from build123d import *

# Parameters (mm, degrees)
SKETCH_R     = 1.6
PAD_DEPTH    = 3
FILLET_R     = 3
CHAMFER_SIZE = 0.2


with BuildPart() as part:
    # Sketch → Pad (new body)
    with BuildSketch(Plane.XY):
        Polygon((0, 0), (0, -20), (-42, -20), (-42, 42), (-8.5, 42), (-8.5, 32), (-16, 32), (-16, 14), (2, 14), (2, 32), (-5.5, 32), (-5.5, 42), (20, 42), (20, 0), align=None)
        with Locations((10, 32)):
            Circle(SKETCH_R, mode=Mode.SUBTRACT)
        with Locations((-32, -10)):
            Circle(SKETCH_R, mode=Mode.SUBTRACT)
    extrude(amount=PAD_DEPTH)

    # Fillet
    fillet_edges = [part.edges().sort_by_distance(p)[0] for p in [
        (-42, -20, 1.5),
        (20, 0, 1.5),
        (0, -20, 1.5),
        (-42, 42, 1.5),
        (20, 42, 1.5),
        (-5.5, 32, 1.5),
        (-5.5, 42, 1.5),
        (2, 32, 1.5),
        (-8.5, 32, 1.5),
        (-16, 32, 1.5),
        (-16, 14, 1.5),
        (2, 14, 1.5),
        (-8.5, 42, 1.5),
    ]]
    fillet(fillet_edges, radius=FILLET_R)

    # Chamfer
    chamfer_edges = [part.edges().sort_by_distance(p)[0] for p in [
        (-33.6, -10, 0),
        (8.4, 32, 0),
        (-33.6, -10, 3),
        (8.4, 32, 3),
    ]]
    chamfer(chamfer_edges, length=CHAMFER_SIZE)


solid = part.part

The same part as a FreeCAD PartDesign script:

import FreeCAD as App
import Part
import Sketcher

V = App.Vector
Q = App.Units.Quantity


def edges_at(feature, points):
    """Names of the edges that pass closest to the given points."""
    edges = feature.Shape.Edges
    near = lambda p: min(range(len(edges)), key=lambda i: edges[i].distToShape(Part.Vertex(*p))[0])
    return sorted({f"Edge{near(p) + 1}" for p in points})

doc = App.newDocument("Part")
body = doc.addObject("PartDesign::Body", "Body")

# Sketch on XY plane
sketch1 = body.newObject("Sketcher::SketchObject", "Sketch")
sketch1.AttachmentSupport = (doc.getObject("XY_Plane"), [""])
sketch1.MapMode = "FlatFace"
sketch1.addGeometry(Part.LineSegment(V(0, -20, 0), V(0, 0, 0)), False)
sketch1.addGeometry(Part.LineSegment(V(0, 0, 0), V(20, 0, 0)), False)
sketch1.addGeometry(Part.LineSegment(V(20, 0, 0), V(20, 42, 0)), False)
sketch1.addGeometry(Part.LineSegment(V(20, 42, 0), V(-5.5, 42, 0)), False)
sketch1.addGeometry(Part.LineSegment(V(-5.5, 42, 0), V(-5.5, 32, 0)), False)
sketch1.addGeometry(Part.LineSegment(V(-5.5, 32, 0), V(2, 32, 0)), False)
sketch1.addGeometry(Part.LineSegment(V(2, 32, 0), V(2, 14, 0)), False)
sketch1.addGeometry(Part.LineSegment(V(2, 14, 0), V(-16, 14, 0)), False)
sketch1.addGeometry(Part.LineSegment(V(-16, 14, 0), V(-16, 32, 0)), False)
sketch1.addGeometry(Part.LineSegment(V(-16, 32, 0), V(-8.5, 32, 0)), False)
sketch1.addGeometry(Part.LineSegment(V(-8.5, 32, 0), V(-8.5, 42, 0)), False)
sketch1.addGeometry(Part.LineSegment(V(-8.5, 42, 0), V(-42, 42, 0)), False)
sketch1.addGeometry(Part.LineSegment(V(-42, 42, 0), V(-42, -20, 0)), False)
sketch1.addGeometry(Part.LineSegment(V(-42, -20, 0), V(0, -20, 0)), False)
sketch1.addGeometry(Part.Circle(V(-32, -10, 0), V(0, 0, 1), 1.6), False)
sketch1.addGeometry(Part.Circle(V(10, 32, 0), V(0, 0, 1), 1.6), False)
sketch1.addConstraint(Sketcher.Constraint("Coincident", 0, 2, 1, 1))
sketch1.addConstraint(Sketcher.Constraint("Coincident", 1, 2, 2, 1))
sketch1.addConstraint(Sketcher.Constraint("Coincident", 2, 2, 3, 1))
sketch1.addConstraint(Sketcher.Constraint("Coincident", 3, 2, 4, 1))
sketch1.addConstraint(Sketcher.Constraint("Coincident", 4, 2, 5, 1))
sketch1.addConstraint(Sketcher.Constraint("Coincident", 5, 2, 6, 1))
sketch1.addConstraint(Sketcher.Constraint("Coincident", 6, 2, 7, 1))
sketch1.addConstraint(Sketcher.Constraint("Coincident", 7, 2, 8, 1))
sketch1.addConstraint(Sketcher.Constraint("Coincident", 8, 2, 9, 1))
sketch1.addConstraint(Sketcher.Constraint("Coincident", 9, 2, 10, 1))
sketch1.addConstraint(Sketcher.Constraint("Coincident", 10, 2, 11, 1))
sketch1.addConstraint(Sketcher.Constraint("Coincident", 11, 2, 12, 1))
sketch1.addConstraint(Sketcher.Constraint("Coincident", 12, 2, 13, 1))
sketch1.addConstraint(Sketcher.Constraint("Coincident", 13, 2, 0, 1))
sketch1.addConstraint(Sketcher.Constraint("Vertical", 0))
sketch1.addConstraint(Sketcher.Constraint("Horizontal", 1))
sketch1.addConstraint(Sketcher.Constraint("Vertical", 2))
sketch1.addConstraint(Sketcher.Constraint("Horizontal", 3))
sketch1.addConstraint(Sketcher.Constraint("Vertical", 4))
sketch1.addConstraint(Sketcher.Constraint("Horizontal", 5))
sketch1.addConstraint(Sketcher.Constraint("Vertical", 6))
sketch1.addConstraint(Sketcher.Constraint("Horizontal", 7))
sketch1.addConstraint(Sketcher.Constraint("Vertical", 8))
sketch1.addConstraint(Sketcher.Constraint("Horizontal", 9))
sketch1.addConstraint(Sketcher.Constraint("Vertical", 10))
sketch1.addConstraint(Sketcher.Constraint("Horizontal", 11))
sketch1.addConstraint(Sketcher.Constraint("Vertical", 12))
sketch1.addConstraint(Sketcher.Constraint("Horizontal", 13))
sketch1.addConstraint(Sketcher.Constraint("Coincident", 0, 2, -1, 1))
sketch1.addConstraint(Sketcher.Constraint("Equal", 14, 15))
sketch1.addConstraint(Sketcher.Constraint("Horizontal", 15, 3, 4, 2))
sketch1.addConstraint(Sketcher.Constraint("Horizontal", 5, 2, 8, 2))
sketch1.addConstraint(Sketcher.Constraint("Horizontal", 3, 2, 10, 2))
sketch1.addConstraint(Sketcher.Constraint("Equal", 5, 9))
sketch1.addConstraint(Sketcher.Constraint("Equal", 1, 0))
sketch1.addConstraint(Sketcher.Constraint("Equal", 13, 2))
sketch1.addConstraint(Sketcher.Constraint("Equal", 7, 6))
sketch1.addConstraint(Sketcher.Constraint("Diameter", 14, Q("3.2 mm")))
sketch1.addConstraint(Sketcher.Constraint("DistanceX", 1, 1, 1, 2, Q("20 mm")))
sketch1.addConstraint(Sketcher.Constraint("DistanceX", 7, 2, 7, 1, Q("18 mm")))
sketch1.addConstraint(Sketcher.Constraint("DistanceX", 13, 1, 13, 2, Q("42 mm")))
sketch1.addConstraint(Sketcher.Constraint("DistanceY", 4, 2, 4, 1, Q("10 mm")))
sketch1.addConstraint(Sketcher.Constraint("DistanceX", 3, 2, 3, 1, Q("25.5 mm")))
sketch1.addConstraint(Sketcher.Constraint("DistanceX", 5, 1, 5, 2, Q("7.5 mm")))
sketch1.addConstraint(Sketcher.Constraint("DistanceX", 14, 3, -1, 1, Q("32 mm")))
sketch1.addConstraint(Sketcher.Constraint("DistanceY", 14, 3, -1, 1, Q("10 mm")))
sketch1.addConstraint(Sketcher.Constraint("DistanceX", -1, 1, 15, 3, Q("10 mm")))
pad1 = body.newObject("PartDesign::Pad", "Pad")
pad1.Profile = sketch1
pad1.Length = 3
doc.recompute()

fillet = body.newObject("PartDesign::Fillet", "Fillet")
fillet.Base = (pad1, edges_at(pad1, [
    (-42, -20, 1.5),
    (20, 0, 1.5),
    (0, -20, 1.5),
    (-42, 42, 1.5),
    (20, 42, 1.5),
    (-5.5, 32, 1.5),
    (-5.5, 42, 1.5),
    (2, 32, 1.5),
    (-8.5, 32, 1.5),
    (-16, 32, 1.5),
    (-16, 14, 1.5),
    (2, 14, 1.5),
    (-8.5, 42, 1.5),
]))
fillet.Radius = 3
doc.recompute()

chamfer = body.newObject("PartDesign::Chamfer", "Chamfer")
chamfer.Base = (fillet, edges_at(fillet, [
    (-33.6, -10, 0),
    (8.4, 32, 0),
    (-33.6, -10, 3),
    (8.4, 32, 3),
]))
chamfer.Size = 0.2

doc.recompute()
